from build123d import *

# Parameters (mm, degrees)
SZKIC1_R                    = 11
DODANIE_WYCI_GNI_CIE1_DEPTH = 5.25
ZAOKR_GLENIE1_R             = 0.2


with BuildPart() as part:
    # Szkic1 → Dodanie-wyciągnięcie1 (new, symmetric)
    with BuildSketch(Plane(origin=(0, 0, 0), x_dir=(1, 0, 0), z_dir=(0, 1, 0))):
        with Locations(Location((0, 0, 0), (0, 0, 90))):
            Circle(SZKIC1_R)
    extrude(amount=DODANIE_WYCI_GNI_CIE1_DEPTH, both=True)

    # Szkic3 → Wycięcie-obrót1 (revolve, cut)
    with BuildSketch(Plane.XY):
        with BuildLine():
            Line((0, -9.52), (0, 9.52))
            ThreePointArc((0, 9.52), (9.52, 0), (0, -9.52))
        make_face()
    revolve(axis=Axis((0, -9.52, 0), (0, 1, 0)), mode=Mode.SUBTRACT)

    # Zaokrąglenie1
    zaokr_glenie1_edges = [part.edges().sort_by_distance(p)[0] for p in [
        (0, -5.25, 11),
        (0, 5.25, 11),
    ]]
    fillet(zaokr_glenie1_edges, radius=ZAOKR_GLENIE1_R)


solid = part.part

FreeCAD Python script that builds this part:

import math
import FreeCAD as App
import Part
import Sketcher
from FreeCAD import Vector
Q = App.Units.Quantity


def edges_at(feature, points):
    """Names of the edges that pass closest to the given points."""
    edges = feature.Shape.Edges
    near = lambda p: min(range(len(edges)), key=lambda i: edges[i].distToShape(Part.Vertex(*p))[0])
    return sorted({f"Edge{near(p) + 1}" for p in points})

doc = App.newDocument("Part")
body = doc.addObject("PartDesign::Body", "Body")

sketch1 = body.newObject("Sketcher::SketchObject", "Sketch")
sketch1.AttachmentSupport = (doc.getObject("XZ_Plane"), [""])
sketch1.MapMode = "FlatFace"
sketch1.addGeometry(Part.Circle(Vector(0, 0, 0), Vector(0, 0, 1), 11), False)
sketch1.addConstraint([
    Sketcher.Constraint("Coincident", 0, 3, -1, 1),
    Sketcher.Constraint("Diameter", 0, Q("22 mm")),
])
pad1 = body.newObject("PartDesign::Pad", "Pad")
pad1.Profile = sketch1
pad1.Length = 10.5
pad1.Midplane = True

sketch2 = body.newObject("Sketcher::SketchObject", "Sketch001")
sketch2.AttachmentSupport = (doc.getObject("XY_Plane"), [""])
sketch2.MapMode = "FlatFace"
sketch2.addGeometry([
    Part.LineSegment(Vector(0, 9.52, 0), Vector(0, -9.52, 0)),
    Part.ArcOfCircle(Part.Circle(Vector(0, 0, 0), Vector(0, 0, 1), 9.52), math.radians(-90), math.radians(90)),
], False)
sketch2.addConstraint([
    Sketcher.Constraint("Coincident", 0, 1, 1, 2),
    Sketcher.Constraint("Coincident", 1, 1, 0, 2),
    Sketcher.Constraint("Vertical", 0),
    Sketcher.Constraint("Coincident", 1, 3, -1, 1),
    Sketcher.Constraint("PointOnObject", 0, 1, -2),
    Sketcher.Constraint("Radius", 1, Q("9.52 mm")),
])
groove = body.newObject("PartDesign::Groove", "Groove")
groove.Profile = sketch2
groove.ReferenceAxis = (sketch2, ["V_Axis"])
groove.Angle = 360
doc.recompute()

fillet = body.newObject("PartDesign::Fillet", "Fillet")
fillet.Base = (groove, edges_at(groove, [(0, -5.25, 11), (0, 5.25, 11)]))
fillet.Radius = 0.2

doc.recompute()
